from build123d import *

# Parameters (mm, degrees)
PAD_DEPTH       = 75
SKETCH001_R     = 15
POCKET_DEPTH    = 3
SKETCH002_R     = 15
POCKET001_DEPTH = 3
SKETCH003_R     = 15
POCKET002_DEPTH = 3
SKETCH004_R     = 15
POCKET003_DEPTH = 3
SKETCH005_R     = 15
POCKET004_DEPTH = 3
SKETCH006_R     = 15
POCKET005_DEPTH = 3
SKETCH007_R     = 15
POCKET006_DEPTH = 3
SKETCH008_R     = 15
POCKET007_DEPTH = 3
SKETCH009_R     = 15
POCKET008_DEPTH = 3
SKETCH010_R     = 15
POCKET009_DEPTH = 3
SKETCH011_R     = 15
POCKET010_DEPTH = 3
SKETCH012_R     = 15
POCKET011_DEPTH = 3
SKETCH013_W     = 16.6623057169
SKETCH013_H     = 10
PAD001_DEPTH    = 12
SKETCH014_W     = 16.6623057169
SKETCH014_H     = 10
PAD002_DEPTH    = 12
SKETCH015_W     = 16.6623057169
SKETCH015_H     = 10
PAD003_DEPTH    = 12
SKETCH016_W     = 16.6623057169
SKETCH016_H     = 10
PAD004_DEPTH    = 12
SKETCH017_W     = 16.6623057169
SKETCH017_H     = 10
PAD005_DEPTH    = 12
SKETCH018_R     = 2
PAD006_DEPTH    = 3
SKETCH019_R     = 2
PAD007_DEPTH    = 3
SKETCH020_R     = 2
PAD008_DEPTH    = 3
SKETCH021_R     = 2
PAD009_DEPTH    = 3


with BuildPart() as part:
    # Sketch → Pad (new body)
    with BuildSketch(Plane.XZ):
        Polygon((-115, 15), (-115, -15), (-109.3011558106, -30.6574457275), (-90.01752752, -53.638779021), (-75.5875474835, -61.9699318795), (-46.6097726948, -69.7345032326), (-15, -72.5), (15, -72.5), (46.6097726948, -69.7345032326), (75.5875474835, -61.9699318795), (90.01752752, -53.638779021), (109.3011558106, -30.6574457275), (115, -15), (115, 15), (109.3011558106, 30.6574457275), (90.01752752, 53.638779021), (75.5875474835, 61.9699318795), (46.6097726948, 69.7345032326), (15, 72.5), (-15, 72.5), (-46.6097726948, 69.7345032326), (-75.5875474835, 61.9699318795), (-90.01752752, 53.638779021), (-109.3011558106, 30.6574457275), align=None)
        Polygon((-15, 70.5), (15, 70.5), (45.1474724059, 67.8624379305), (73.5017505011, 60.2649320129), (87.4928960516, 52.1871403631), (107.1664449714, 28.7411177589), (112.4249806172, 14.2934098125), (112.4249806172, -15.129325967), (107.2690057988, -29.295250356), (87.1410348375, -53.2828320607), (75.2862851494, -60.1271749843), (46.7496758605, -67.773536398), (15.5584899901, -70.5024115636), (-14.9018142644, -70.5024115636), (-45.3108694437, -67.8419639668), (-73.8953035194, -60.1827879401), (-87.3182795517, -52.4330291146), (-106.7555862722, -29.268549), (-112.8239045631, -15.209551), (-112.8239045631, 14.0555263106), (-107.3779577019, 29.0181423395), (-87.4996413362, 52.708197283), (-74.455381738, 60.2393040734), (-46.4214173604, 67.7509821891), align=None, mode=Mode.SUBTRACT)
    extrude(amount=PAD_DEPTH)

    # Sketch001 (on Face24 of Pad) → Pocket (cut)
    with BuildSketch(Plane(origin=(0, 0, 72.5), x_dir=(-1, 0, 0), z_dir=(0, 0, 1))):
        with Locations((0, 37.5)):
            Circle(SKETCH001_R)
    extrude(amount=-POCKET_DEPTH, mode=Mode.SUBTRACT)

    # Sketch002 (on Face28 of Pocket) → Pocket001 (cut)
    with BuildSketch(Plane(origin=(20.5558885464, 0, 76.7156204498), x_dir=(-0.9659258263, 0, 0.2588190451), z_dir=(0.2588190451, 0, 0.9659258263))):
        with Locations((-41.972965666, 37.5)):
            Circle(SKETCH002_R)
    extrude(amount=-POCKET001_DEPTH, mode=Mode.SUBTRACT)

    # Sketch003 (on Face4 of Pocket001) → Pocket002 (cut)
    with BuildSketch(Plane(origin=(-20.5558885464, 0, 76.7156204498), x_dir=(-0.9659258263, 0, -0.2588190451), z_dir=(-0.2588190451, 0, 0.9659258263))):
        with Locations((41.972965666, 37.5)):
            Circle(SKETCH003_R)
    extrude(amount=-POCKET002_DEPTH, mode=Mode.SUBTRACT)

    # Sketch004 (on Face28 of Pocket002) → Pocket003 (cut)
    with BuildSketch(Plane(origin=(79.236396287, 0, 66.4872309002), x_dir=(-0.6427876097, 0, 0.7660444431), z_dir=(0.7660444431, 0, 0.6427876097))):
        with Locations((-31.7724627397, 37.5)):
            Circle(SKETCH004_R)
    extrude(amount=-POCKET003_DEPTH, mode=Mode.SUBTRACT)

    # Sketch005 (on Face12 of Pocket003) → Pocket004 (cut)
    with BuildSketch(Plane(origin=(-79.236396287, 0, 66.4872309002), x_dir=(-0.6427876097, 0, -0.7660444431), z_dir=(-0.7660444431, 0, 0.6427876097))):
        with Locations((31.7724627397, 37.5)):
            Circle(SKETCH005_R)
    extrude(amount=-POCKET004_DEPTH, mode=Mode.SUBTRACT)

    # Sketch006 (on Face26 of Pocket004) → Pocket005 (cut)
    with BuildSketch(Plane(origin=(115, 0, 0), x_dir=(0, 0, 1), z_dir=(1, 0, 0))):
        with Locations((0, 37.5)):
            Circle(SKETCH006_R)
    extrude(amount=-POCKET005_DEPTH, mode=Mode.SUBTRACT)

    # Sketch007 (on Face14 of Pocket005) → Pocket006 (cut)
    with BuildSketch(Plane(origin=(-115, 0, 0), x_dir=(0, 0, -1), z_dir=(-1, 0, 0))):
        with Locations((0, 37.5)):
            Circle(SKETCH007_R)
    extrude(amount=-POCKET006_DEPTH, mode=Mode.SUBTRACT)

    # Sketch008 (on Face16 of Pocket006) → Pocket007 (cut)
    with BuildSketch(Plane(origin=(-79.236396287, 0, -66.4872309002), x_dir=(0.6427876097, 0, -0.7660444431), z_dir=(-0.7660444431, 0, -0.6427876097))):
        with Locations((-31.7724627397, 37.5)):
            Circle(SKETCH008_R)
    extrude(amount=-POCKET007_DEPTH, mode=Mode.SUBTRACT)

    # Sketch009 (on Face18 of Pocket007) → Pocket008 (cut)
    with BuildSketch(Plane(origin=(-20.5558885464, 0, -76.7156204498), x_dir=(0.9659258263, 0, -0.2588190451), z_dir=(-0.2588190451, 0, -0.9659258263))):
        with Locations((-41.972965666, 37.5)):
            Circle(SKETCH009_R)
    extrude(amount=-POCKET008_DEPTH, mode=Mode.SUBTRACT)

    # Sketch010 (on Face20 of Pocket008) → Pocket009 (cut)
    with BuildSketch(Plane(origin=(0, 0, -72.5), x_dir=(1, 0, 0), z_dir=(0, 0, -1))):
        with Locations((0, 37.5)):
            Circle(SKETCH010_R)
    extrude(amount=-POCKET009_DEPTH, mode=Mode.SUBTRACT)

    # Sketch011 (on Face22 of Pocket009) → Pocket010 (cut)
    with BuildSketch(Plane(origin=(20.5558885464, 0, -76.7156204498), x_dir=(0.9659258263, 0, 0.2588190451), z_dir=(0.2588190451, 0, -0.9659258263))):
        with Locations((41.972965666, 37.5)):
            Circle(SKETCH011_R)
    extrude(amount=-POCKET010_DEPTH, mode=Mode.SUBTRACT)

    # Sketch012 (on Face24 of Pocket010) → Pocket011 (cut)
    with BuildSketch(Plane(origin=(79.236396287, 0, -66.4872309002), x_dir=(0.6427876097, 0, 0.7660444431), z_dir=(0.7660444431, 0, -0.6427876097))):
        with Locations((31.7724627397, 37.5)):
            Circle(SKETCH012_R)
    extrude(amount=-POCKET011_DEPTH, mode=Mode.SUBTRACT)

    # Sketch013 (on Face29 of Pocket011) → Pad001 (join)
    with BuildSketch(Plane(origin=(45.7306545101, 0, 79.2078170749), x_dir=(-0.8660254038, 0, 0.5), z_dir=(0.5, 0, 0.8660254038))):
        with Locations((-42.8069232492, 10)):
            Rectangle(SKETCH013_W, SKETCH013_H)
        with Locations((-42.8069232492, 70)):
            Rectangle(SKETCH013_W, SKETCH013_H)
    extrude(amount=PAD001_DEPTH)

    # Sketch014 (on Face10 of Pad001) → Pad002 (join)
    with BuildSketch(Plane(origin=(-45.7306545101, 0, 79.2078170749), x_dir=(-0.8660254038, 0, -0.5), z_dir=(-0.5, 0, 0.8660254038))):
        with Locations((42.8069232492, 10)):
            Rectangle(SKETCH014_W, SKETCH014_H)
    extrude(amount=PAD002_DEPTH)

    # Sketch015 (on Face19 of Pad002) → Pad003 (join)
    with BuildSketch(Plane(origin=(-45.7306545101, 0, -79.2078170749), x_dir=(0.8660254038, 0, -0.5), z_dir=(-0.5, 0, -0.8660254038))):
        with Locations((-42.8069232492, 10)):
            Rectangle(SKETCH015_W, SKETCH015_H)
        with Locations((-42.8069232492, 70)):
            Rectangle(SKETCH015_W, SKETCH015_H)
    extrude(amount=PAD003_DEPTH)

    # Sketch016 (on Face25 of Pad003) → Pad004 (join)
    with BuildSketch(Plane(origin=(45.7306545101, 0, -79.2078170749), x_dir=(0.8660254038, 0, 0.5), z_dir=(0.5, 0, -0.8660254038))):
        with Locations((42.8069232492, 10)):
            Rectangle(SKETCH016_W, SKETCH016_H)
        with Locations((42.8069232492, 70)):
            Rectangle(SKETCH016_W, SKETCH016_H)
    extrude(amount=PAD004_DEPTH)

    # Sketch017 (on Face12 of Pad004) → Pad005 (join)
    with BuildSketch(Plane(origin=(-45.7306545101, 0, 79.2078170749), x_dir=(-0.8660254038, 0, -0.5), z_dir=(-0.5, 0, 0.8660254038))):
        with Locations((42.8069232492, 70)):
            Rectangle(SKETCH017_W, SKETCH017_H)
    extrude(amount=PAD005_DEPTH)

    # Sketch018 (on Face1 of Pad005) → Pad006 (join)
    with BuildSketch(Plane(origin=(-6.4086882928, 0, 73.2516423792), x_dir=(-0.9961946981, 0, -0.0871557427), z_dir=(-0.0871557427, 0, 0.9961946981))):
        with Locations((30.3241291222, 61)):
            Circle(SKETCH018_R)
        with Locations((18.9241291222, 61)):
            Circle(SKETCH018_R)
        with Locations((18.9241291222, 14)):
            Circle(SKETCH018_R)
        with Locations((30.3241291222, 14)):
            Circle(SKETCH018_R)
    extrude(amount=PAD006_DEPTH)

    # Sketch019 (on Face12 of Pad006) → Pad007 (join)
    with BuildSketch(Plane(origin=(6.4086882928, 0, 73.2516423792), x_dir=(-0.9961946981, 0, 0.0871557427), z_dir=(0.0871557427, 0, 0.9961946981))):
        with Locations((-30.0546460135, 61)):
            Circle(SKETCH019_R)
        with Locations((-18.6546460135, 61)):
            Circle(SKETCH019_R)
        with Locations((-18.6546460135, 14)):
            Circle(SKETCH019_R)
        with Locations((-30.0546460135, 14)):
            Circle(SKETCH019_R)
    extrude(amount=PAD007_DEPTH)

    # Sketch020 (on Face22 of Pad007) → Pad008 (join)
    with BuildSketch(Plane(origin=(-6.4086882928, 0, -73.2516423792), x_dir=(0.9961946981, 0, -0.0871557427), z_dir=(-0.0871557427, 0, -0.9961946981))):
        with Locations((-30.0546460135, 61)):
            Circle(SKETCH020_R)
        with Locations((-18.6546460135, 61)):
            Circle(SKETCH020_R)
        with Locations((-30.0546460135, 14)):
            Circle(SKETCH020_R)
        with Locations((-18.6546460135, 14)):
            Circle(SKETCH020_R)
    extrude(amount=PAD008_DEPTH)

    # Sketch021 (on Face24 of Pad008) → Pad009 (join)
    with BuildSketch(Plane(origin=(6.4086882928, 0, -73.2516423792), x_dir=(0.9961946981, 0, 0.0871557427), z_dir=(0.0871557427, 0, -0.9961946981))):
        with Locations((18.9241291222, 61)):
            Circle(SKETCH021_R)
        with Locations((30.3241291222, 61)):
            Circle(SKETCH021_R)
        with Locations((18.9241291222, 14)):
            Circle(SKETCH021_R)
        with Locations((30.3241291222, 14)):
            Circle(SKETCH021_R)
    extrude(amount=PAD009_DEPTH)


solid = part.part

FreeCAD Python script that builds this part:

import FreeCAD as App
import Part
import Sketcher
Q = App.Units.Quantity

doc = App.newDocument("Part")
body = doc.addObject("PartDesign::Body", "Body")

# Sketch on XZ plane
sketch1 = body.newObject("Sketcher::SketchObject", "Sketch")
sketch1.AttachmentSupport = (doc.getObject("XZ_Plane"), [""])
sketch1.MapMode = "FlatFace"
sketch1.addGeometry([
    Part.LineSegment(App.Vector(-115, 15, 0), App.Vector(-115, -15, 0)),  # 0
    Part.LineSegment(App.Vector(-115, -15, 0), App.Vector(-109, -31, 0)),  # 1
    Part.LineSegment(App.Vector(-109, -31, 0), App.Vector(-90, -54, 0)),  # 2
    Part.LineSegment(App.Vector(-90, -54, 0), App.Vector(-76, -62, 0)),  # 3
    Part.LineSegment(App.Vector(-76, -62, 0), App.Vector(-47, -70, 0)),  # 4
    Part.LineSegment(App.Vector(-47, -70, 0), App.Vector(-15, -72, 0)),  # 5
    Part.LineSegment(App.Vector(-15, -72, 0), App.Vector(15, -72, 0)),  # 6
    Part.LineSegment(App.Vector(15, -72, 0), App.Vector(47, -70, 0)),  # 7
    Part.LineSegment(App.Vector(47, -70, 0), App.Vector(76, -62, 0)),  # 8
    Part.LineSegment(App.Vector(76, -62, 0), App.Vector(90, -54, 0)),  # 9
    Part.LineSegment(App.Vector(90, -54, 0), App.Vector(109, -31, 0)),  # 10
    Part.LineSegment(App.Vector(109, -31, 0), App.Vector(115, -15, 0)),  # 11
    Part.LineSegment(App.Vector(115, -15, 0), App.Vector(115, 15, 0)),  # 12
    Part.LineSegment(App.Vector(115, 15, 0), App.Vector(109, 31, 0)),  # 13
    Part.LineSegment(App.Vector(109, 31, 0), App.Vector(90, 54, 0)),  # 14
    Part.LineSegment(App.Vector(90, 54, 0), App.Vector(76, 62, 0)),  # 15
    Part.LineSegment(App.Vector(76, 62, 0), App.Vector(47, 70, 0)),  # 16
    Part.LineSegment(App.Vector(47, 70, 0), App.Vector(15, 72, 0)),  # 17
    Part.LineSegment(App.Vector(15, 72, 0), App.Vector(-15, 72, 0)),  # 18
    Part.LineSegment(App.Vector(-15, 72, 0), App.Vector(-47, 70, 0)),  # 19
    Part.LineSegment(App.Vector(-47, 70, 0), App.Vector(-76, 62, 0)),  # 20
    Part.LineSegment(App.Vector(-76, 62, 0), App.Vector(-90, 54, 0)),  # 21
    Part.LineSegment(App.Vector(-90, 54, 0), App.Vector(-109, 31, 0)),  # 22
    Part.LineSegment(App.Vector(-109, 31, 0), App.Vector(-115, 15, 0)),  # 23
    Part.LineSegment(App.Vector(-46, 68, 0), App.Vector(-15, 70, 0)),  # 24
    Part.LineSegment(App.Vector(-15, 70, 0), App.Vector(15, 70, 0)),  # 25
    Part.LineSegment(App.Vector(15, 70, 0), App.Vector(45, 68, 0)),  # 26
    Part.LineSegment(App.Vector(45, 68, 0), App.Vector(74, 60, 0)),  # 27
    Part.LineSegment(App.Vector(74, 60, 0), App.Vector(87, 52, 0)),  # 28
    Part.LineSegment(App.Vector(87, 52, 0), App.Vector(107, 29, 0)),  # 29
    Part.LineSegment(App.Vector(107, 29, 0), App.Vector(112, 14, 0)),  # 30
    Part.LineSegment(App.Vector(112, 14, 0), App.Vector(112, -15, 0)),  # 31
    Part.LineSegment(App.Vector(112, -15, 0), App.Vector(107, -29, 0)),  # 32
    Part.LineSegment(App.Vector(107, -29, 0), App.Vector(87, -53, 0)),  # 33
    Part.LineSegment(App.Vector(87, -53, 0), App.Vector(75, -60, 0)),  # 34
    Part.LineSegment(App.Vector(75, -60, 0), App.Vector(47, -68, 0)),  # 35
    Part.LineSegment(App.Vector(47, -68, 0), App.Vector(16, -71, 0)),  # 36
    Part.LineSegment(App.Vector(16, -71, 0), App.Vector(-15, -71, 0)),  # 37
    Part.LineSegment(App.Vector(-15, -71, 0), App.Vector(-45, -68, 0)),  # 38
    Part.LineSegment(App.Vector(-45, -68, 0), App.Vector(-74, -60, 0)),  # 39
    Part.LineSegment(App.Vector(-74, -60, 0), App.Vector(-87, -52, 0)),  # 40
    Part.LineSegment(App.Vector(-87, -52, 0), App.Vector(-107, -29, 0)),  # 41
    Part.LineSegment(App.Vector(-107, -29, 0), App.Vector(-113, -15, 0)),  # 42
    Part.LineSegment(App.Vector(-113, -15, 0), App.Vector(-113, 14, 0)),  # 43
    Part.LineSegment(App.Vector(-113, 14, 0), App.Vector(-107, 29, 0)),  # 44
    Part.LineSegment(App.Vector(-107, 29, 0), App.Vector(-87, 53, 0)),  # 45
    Part.LineSegment(App.Vector(-87, 53, 0), App.Vector(-74, 60, 0)),  # 46
    Part.LineSegment(App.Vector(-74, 60, 0), App.Vector(-46, 68, 0)),  # 47
], False)
sketch1.addConstraint([
    Sketcher.Constraint("Coincident", 0, 2, 1, 1),
    Sketcher.Constraint("Coincident", 1, 2, 2, 1),
    Sketcher.Constraint("Coincident", 2, 2, 3, 1),
    Sketcher.Constraint("Coincident", 3, 2, 4, 1),
    Sketcher.Constraint("Coincident", 4, 2, 5, 1),
    Sketcher.Constraint("Coincident", 5, 2, 6, 1),
    Sketcher.Constraint("Coincident", 6, 2, 7, 1),
    Sketcher.Constraint("Coincident", 7, 2, 8, 1),
    Sketcher.Constraint("Coincident", 8, 2, 9, 1),
    Sketcher.Constraint("Coincident", 9, 2, 10, 1),
    Sketcher.Constraint("Coincident", 10, 2, 11, 1),
    Sketcher.Constraint("Coincident", 11, 2, 12, 1),
    Sketcher.Constraint("Coincident", 12, 2, 13, 1),
    Sketcher.Constraint("Coincident", 13, 2, 14, 1),
    Sketcher.Constraint("Coincident", 14, 2, 15, 1),
    Sketcher.Constraint("Coincident", 15, 2, 16, 1),
    Sketcher.Constraint("Coincident", 16, 2, 17, 1),
    Sketcher.Constraint("Coincident", 17, 2, 18, 1),
    Sketcher.Constraint("Coincident", 18, 2, 19, 1),
    Sketcher.Constraint("Coincident", 19, 2, 20, 1),
    Sketcher.Constraint("Coincident", 20, 2, 21, 1),
    Sketcher.Constraint("Coincident", 21, 2, 22, 1),
    Sketcher.Constraint("Coincident", 22, 2, 23, 1),
    Sketcher.Constraint("Coincident", 23, 2, 0, 1),
    Sketcher.Constraint("Coincident", 24, 2, 25, 1),
    Sketcher.Constraint("Coincident", 25, 2, 26, 1),
    Sketcher.Constraint("Coincident", 26, 2, 27, 1),
    Sketcher.Constraint("Coincident", 27, 2, 28, 1),
    Sketcher.Constraint("Coincident", 28, 2, 29, 1),
    Sketcher.Constraint("Coincident", 29, 2, 30, 1),
    Sketcher.Constraint("Coincident", 30, 2, 31, 1),
    Sketcher.Constraint("Coincident", 31, 2, 32, 1),
    Sketcher.Constraint("Coincident", 32, 2, 33, 1),
    Sketcher.Constraint("Coincident", 33, 2, 34, 1),
    Sketcher.Constraint("Coincident", 34, 2, 35, 1),
    Sketcher.Constraint("Coincident", 35, 2, 36, 1),
    Sketcher.Constraint("Coincident", 36, 2, 37, 1),
    Sketcher.Constraint("Coincident", 37, 2, 38, 1),
    Sketcher.Constraint("Coincident", 38, 2, 39, 1),
    Sketcher.Constraint("Coincident", 39, 2, 40, 1),
    Sketcher.Constraint("Coincident", 40, 2, 41, 1),
    Sketcher.Constraint("Coincident", 41, 2, 42, 1),
    Sketcher.Constraint("Coincident", 42, 2, 43, 1),
    Sketcher.Constraint("Coincident", 43, 2, 44, 1),
    Sketcher.Constraint("Coincident", 44, 2, 45, 1),
    Sketcher.Constraint("Coincident", 45, 2, 46, 1),
    Sketcher.Constraint("Coincident", 46, 2, 47, 1),
    Sketcher.Constraint("Coincident", 47, 2, 24, 1),
    Sketcher.Constraint("Vertical", 0),
    Sketcher.Constraint("Horizontal", 6),
    Sketcher.Constraint("Vertical", 12),
    Sketcher.Constraint("Horizontal", 18),
    Sketcher.Constraint("Horizontal", 25),
    Sketcher.Constraint("Vertical", 31),
    Sketcher.Constraint("Horizontal", 37),
    Sketcher.Constraint("Vertical", 43),
    Sketcher.Constraint("Symmetric", 0, 2, 12, 2, -1, 1),
    Sketcher.Constraint("Symmetric", 1, 2, 13, 2, -1, 1),
    Sketcher.Constraint("Symmetric", 2, 2, 14, 2, -1, 1),
    Sketcher.Constraint("Symmetric", 3, 2, 15, 2, -1, 1),
    Sketcher.Constraint("Symmetric", 4, 2, 16, 2, -1, 1),
    Sketcher.Constraint("Symmetric", 5, 2, 17, 2, -1, 1),
    Sketcher.Constraint("Symmetric", 7, 2, 19, 2, -1, 1),
    Sketcher.Constraint("Symmetric", 8, 2, 20, 2, -1, 1),
    Sketcher.Constraint("Symmetric", 9, 2, 21, 2, -1, 1),
    Sketcher.Constraint("Symmetric", 10, 2, 22, 2, -1, 1),
    Sketcher.Constraint("Symmetric", 4, 2, 7, 2, -2),
    Sketcher.Constraint("Symmetric", 3, 2, 8, 2, -2),
    Sketcher.Constraint("Symmetric", 2, 2, 9, 2, -2),
    Sketcher.Constraint("Symmetric", 1, 2, 10, 2, -2),
    Sketcher.Constraint("Parallel", 7, 19),
    Sketcher.Constraint("Parallel", 11, 23),
    Sketcher.Constraint("Parallel", 19, 24),
    Sketcher.Constraint("Parallel", 17, 26),
    Sketcher.Constraint("Parallel", 16, 27),
    Sketcher.Constraint("Parallel", 15, 28),
    Sketcher.Constraint("Parallel", 14, 29),
    Sketcher.Constraint("Parallel", 13, 30),
    Sketcher.Constraint("Parallel", 23, 32),
    Sketcher.Constraint("Parallel", 22, 33),
    Sketcher.Constraint("Parallel", 21, 34),
    Sketcher.Constraint("Parallel", 20, 35),
    Sketcher.Constraint("Parallel", 24, 36),
    Sketcher.Constraint("Parallel", 26, 38),
    Sketcher.Constraint("Parallel", 27, 39),
    Sketcher.Constraint("Parallel", 28, 40),
    Sketcher.Constraint("Parallel", 29, 41),
    Sketcher.Constraint("Parallel", 32, 44),
    Sketcher.Constraint("Parallel", 33, 45),
    Sketcher.Constraint("Parallel", 34, 46),
    Sketcher.Constraint("Parallel", 35, 47),
    Sketcher.Constraint("Horizontal", 0, 2, 11, 2),
    Sketcher.Constraint("Vertical", 6, 2, 17, 2),
    Sketcher.Constraint("Vertical", 18, 2, 24, 2),
    Sketcher.Constraint("Vertical", 17, 2, 25, 2),
    Sketcher.Constraint("Equal", 25, 0),
    Sketcher.Constraint("Equal", 1, 3),
    Sketcher.Constraint("Equal", 2, 4),
    Sketcher.Constraint("DistanceX", 6, 1, 6, 2, Q("30 mm")),
    Sketcher.Constraint("Angle", 1, Q("-70 deg")),
    Sketcher.Constraint("Angle", 2, Q("-50 deg")),
    Sketcher.Constraint("Angle", 3, Q("-30 deg")),
    Sketcher.Constraint("Angle", 4, Q("-15 deg")),
    Sketcher.Constraint("Angle", 5, Q("-5 deg")),
    Sketcher.Constraint("Distance", 2, Q("30 mm")),
    Sketcher.Constraint("DistanceX", 0, 2, -1, 1, Q("115 mm")),
    Sketcher.Constraint("DistanceY", 24, 2, 18, 2, Q("2 mm")),
    Sketcher.Constraint("DistanceY", 5, 2, -1, 1, Q("72.5 mm")),
    Sketcher.Constraint("DistanceY", 27, 2, 15, 2, Q("1.705 mm")),
    Sketcher.Constraint("DistanceY", 41, 2, 42, 2, Q("14.058998 mm")),
    Sketcher.Constraint("DistanceX", 26, 2, 16, 2, Q("1.4623 mm")),
    Sketcher.Constraint("DistanceY", 8, 2, 33, 2, Q("8.6871 mm")),
    Sketcher.Constraint("DistanceX", 22, 2, 44, 2, Q("1.923198 mm")),
    Sketcher.Constraint("DistanceY", 46, 2, 19, 2, Q("9.495199 mm")),
    Sketcher.Constraint("Distance", 29, Q("30.606609 mm")),
    Sketcher.Constraint("Distance", 30, Q("15.37493 mm")),
    Sketcher.Constraint("Distance", 32, Q("15.075062 mm")),
    Sketcher.Constraint("Distance", 35, Q("29.543272 mm")),
    Sketcher.Constraint("Distance", 36, Q("31.310331 mm")),
    Sketcher.Constraint("Distance", 41, Q("30.239081 mm")),
    Sketcher.Constraint("Distance", 45, Q("30.92517 mm")),
    Sketcher.Constraint("DistanceX", 37, 2, 37, 1, Q("30.460304 mm")),
    Sketcher.Constraint("DistanceY", 31, 2, 31, 1, Q("29.422736 mm")),
    Sketcher.Constraint("DistanceY", 43, 1, 43, 2, Q("29.265077 mm")),
    Sketcher.Constraint("DistanceY", -1, 1, 28, 2, Q("52.18714 mm")),
    Sketcher.Constraint("DistanceX", -1, 1, 36, 2, Q("15.55849 mm")),
    Sketcher.Constraint("DistanceX", 38, 2, -1, 1, Q("45.310869 mm")),
    Sketcher.Constraint("DistanceX", 40, 2, -1, 1, Q("87.31828 mm")),
    Sketcher.Constraint("DistanceY", 40, 2, -1, 1, Q("52.433029 mm")),
    Sketcher.Constraint("DistanceX", 46, 2, -1, 1, Q("74.455382 mm")),
])
pad1 = body.newObject("PartDesign::Pad", "Pad")
pad1.Profile = sketch1
pad1.Length = 75

# Sketch on XY plane
sketch2 = body.newObject("Sketcher::SketchObject", "Sketch001")
sketch2.AttachmentSupport = (doc.getObject("XY_Plane"), [""])
sketch2.MapMode = "FlatFace"
sketch2.AttachmentOffset = App.Placement(App.Vector(0, 0, 72.5), App.Rotation())
sketch2.addGeometry(Part.Circle(App.Vector(0, -38, 0), App.Vector(0, 0, 1), 15), False)
sketch2.addConstraint([
    Sketcher.Constraint("PointOnObject", 0, 3, -2),
    Sketcher.Constraint("Diameter", 0, Q("30 mm")),
    Sketcher.Constraint("DistanceY", 0, 3, -1, 1, Q("37.5 mm")),
])
pocket1 = body.newObject("PartDesign::Pocket", "Pocket")
pocket1.Profile = sketch2
pocket1.Length = 3

# Sketch on an angled plane
sketch3 = body.newObject("Sketcher::SketchObject", "Sketch002")
sketch3.Placement = App.Placement(App.Vector(20.555889, 0, 76.71562), App.Rotation(App.Vector(-0.965925826, 0, 0.258819045), App.Vector(0, -0.999999999, 0), App.Vector(0.258819045, 0, 0.965925826), "ZXY"))
sketch3.addGeometry(Part.Circle(App.Vector(-42, 37, 0), App.Vector(0, 0, 1), 15), False)
sketch3.addConstraint([
    Sketcher.Constraint("Diameter", 0, Q("30 mm")),
    Sketcher.Constraint("DistanceY", -1, 1, 0, 3, Q("37.5 mm")),
    Sketcher.Constraint("DistanceX", 0, 3, -1, 1, Q("41.972966 mm")),
])
pocket2 = body.newObject("PartDesign::Pocket", "Pocket001")
pocket2.Profile = sketch3
pocket2.Length = 3

# Sketch on an angled plane
sketch4 = body.newObject("Sketcher::SketchObject", "Sketch003")
sketch4.Placement = App.Placement(App.Vector(-20.555889, 0, 76.71562), App.Rotation(App.Vector(-0.965925826, 0, -0.258819045), App.Vector(0, -0.999999999, 0), App.Vector(-0.258819045, 0, 0.965925826), "ZXY"))
sketch4.addGeometry(Part.Circle(App.Vector(42, 37, 0), App.Vector(0, 0, 1), 15), False)
sketch4.addConstraint([
    Sketcher.Constraint("Diameter", 0, Q("30 mm")),
    Sketcher.Constraint("DistanceY", -1, 1, 0, 3, Q("37.5 mm")),
    Sketcher.Constraint("DistanceX", -1, 1, 0, 3, Q("41.972966 mm")),
])
pocket3 = body.newObject("PartDesign::Pocket", "Pocket002")
pocket3.Profile = sketch4
pocket3.Length = 3

# Sketch on an angled plane
sketch5 = body.newObject("Sketcher::SketchObject", "Sketch004")
sketch5.Placement = App.Placement(App.Vector(79.236396, 0, 66.487231), App.Rotation(App.Vector(-0.64278761, 0, 0.766044443), App.Vector(0, -1, 0), App.Vector(0.766044443, 0, 0.64278761), "ZXY"))
sketch5.addGeometry(Part.Circle(App.Vector(-32, 38, 0), App.Vector(0, 0, 1), 15), False)
sketch5.addConstraint([
    Sketcher.Constraint("Diameter", 0, Q("30 mm")),
    Sketcher.Constraint("DistanceY", -1, 1, 0, 3, Q("37.5 mm")),
    Sketcher.Constraint("DistanceX", 0, 3, -1, 1, Q("31.772463 mm")),
])
pocket4 = body.newObject("PartDesign::Pocket", "Pocket003")
pocket4.Profile = sketch5
pocket4.Length = 3

# Sketch on an angled plane
sketch6 = body.newObject("Sketcher::SketchObject", "Sketch005")
sketch6.Placement = App.Placement(App.Vector(-79.236396, 0, 66.487231), App.Rotation(App.Vector(-0.64278761, 0, -0.766044443), App.Vector(0, -1, 0), App.Vector(-0.766044443, 0, 0.64278761), "ZXY"))
sketch6.addGeometry(Part.Circle(App.Vector(32, 38, 0), App.Vector(0, 0, 1), 15), False)
sketch6.addConstraint([
    Sketcher.Constraint("Diameter", 0, Q("30 mm")),
    Sketcher.Constraint("DistanceY", -1, 1, 0, 3, Q("37.5 mm")),
    Sketcher.Constraint("DistanceX", -1, 1, 0, 3, Q("31.772463 mm")),
])
pocket5 = body.newObject("PartDesign::Pocket", "Pocket004")
pocket5.Profile = sketch6
pocket5.Length = 3

# Sketch on YZ plane
sketch7 = body.newObject("Sketcher::SketchObject", "Sketch006")
sketch7.AttachmentSupport = (doc.getObject("YZ_Plane"), [""])
sketch7.MapMode = "FlatFace"
sketch7.AttachmentOffset = App.Placement(App.Vector(0, 0, 115), App.Rotation())
sketch7.addGeometry(Part.Circle(App.Vector(-38, 0, 0), App.Vector(0, 0, 1), 15), False)
sketch7.addConstraint([
    Sketcher.Constraint("PointOnObject", 0, 3, -1),
    Sketcher.Constraint("Diameter", 0, Q("30 mm")),
    Sketcher.Constraint("DistanceX", 0, 3, -1, 1, Q("37.5 mm")),
])
pocket6 = body.newObject("PartDesign::Pocket", "Pocket005")
pocket6.Profile = sketch7
pocket6.Length = 3

# Sketch on YZ plane
sketch8 = body.newObject("Sketcher::SketchObject", "Sketch007")
sketch8.AttachmentSupport = (doc.getObject("YZ_Plane"), [""])
sketch8.MapMode = "FlatFace"
sketch8.AttachmentOffset = App.Placement(App.Vector(0, 0, -115), App.Rotation())
sketch8.addGeometry(Part.Circle(App.Vector(-38, 0, 0), App.Vector(0, 0, 1), 15), False)
sketch8.addConstraint([
    Sketcher.Constraint("PointOnObject", 0, 3, -1),
    Sketcher.Constraint("Diameter", 0, Q("30 mm")),
    Sketcher.Constraint("DistanceX", 0, 3, -1, 1, Q("37.5 mm")),
])
pocket7 = body.newObject("PartDesign::Pocket", "Pocket006")
pocket7.Profile = sketch8
pocket7.Length = 3
pocket7.Reversed = True

# Sketch on an angled plane
sketch9 = body.newObject("Sketcher::SketchObject", "Sketch008")
sketch9.Placement = App.Placement(App.Vector(-79.236396, 0, -66.487231), App.Rotation(App.Vector(0.64278761, 0, -0.766044443), App.Vector(0, -1, 0), App.Vector(-0.766044443, 0, -0.64278761), "ZXY"))
sketch9.addGeometry(Part.Circle(App.Vector(-32, 38, 0), App.Vector(0, 0, 1), 15), False)
sketch9.addConstraint([
    Sketcher.Constraint("Diameter", 0, Q("30 mm")),
    Sketcher.Constraint("DistanceY", -1, 1, 0, 3, Q("37.5 mm")),
    Sketcher.Constraint("DistanceX", 0, 3, -1, 1, Q("31.772463 mm")),
])
pocket8 = body.newObject("PartDesign::Pocket", "Pocket007")
pocket8.Profile = sketch9
pocket8.Length = 3

# Sketch on an angled plane
sketch10 = body.newObject("Sketcher::SketchObject", "Sketch009")
sketch10.Placement = App.Placement(App.Vector(-20.555889, 0, -76.71562), App.Rotation(App.Vector(0.965925826, 0, -0.258819045), App.Vector(0, -0.999999999, 0), App.Vector(-0.258819045, 0, -0.965925826), "ZXY"))
sketch10.addGeometry(Part.Circle(App.Vector(-42, 37, 0), App.Vector(0, 0, 1), 15), False)
sketch10.addConstraint([
    Sketcher.Constraint("Diameter", 0, Q("30 mm")),
    Sketcher.Constraint("DistanceY", -1, 1, 0, 3, Q("37.5 mm")),
    Sketcher.Constraint("DistanceX", 0, 3, -1, 1, Q("41.972966 mm")),
])
pocket9 = body.newObject("PartDesign::Pocket", "Pocket008")
pocket9.Profile = sketch10
pocket9.Length = 3

# Sketch on XY plane
sketch11 = body.newObject("Sketcher::SketchObject", "Sketch010")
sketch11.AttachmentSupport = (doc.getObject("XY_Plane"), [""])
sketch11.MapMode = "FlatFace"
sketch11.AttachmentOffset = App.Placement(App.Vector(0, 0, -72.5), App.Rotation())
sketch11.addGeometry(Part.Circle(App.Vector(0, -38, 0), App.Vector(0, 0, 1), 15), False)
sketch11.addConstraint([
    Sketcher.Constraint("PointOnObject", 0, 3, -2),
    Sketcher.Constraint("Diameter", 0, Q("30 mm")),
    Sketcher.Constraint("DistanceY", 0, 3, -1, 1, Q("37.5 mm")),
])
pocket10 = body.newObject("PartDesign::Pocket", "Pocket009")
pocket10.Profile = sketch11
pocket10.Length = 3
pocket10.Reversed = True

# Sketch on an angled plane
sketch12 = body.newObject("Sketcher::SketchObject", "Sketch011")
sketch12.Placement = App.Placement(App.Vector(20.555889, 0, -76.71562), App.Rotation(App.Vector(0.965925826, 0, 0.258819045), App.Vector(0, -0.999999999, 0), App.Vector(0.258819045, 0, -0.965925826), "ZXY"))
sketch12.addGeometry(Part.Circle(App.Vector(42, 37, 0), App.Vector(0, 0, 1), 15), False)
sketch12.addConstraint([
    Sketcher.Constraint("Diameter", 0, Q("30 mm")),
    Sketcher.Constraint("DistanceY", -1, 1, 0, 3, Q("37.5 mm")),
    Sketcher.Constraint("DistanceX", -1, 1, 0, 3, Q("41.972966 mm")),
])
pocket11 = body.newObject("PartDesign::Pocket", "Pocket010")
pocket11.Profile = sketch12
pocket11.Length = 3

# Sketch on an angled plane
sketch13 = body.newObject("Sketcher::SketchObject", "Sketch012")
sketch13.Placement = App.Placement(App.Vector(79.236396, 0, -66.487231), App.Rotation(App.Vector(0.64278761, 0, 0.766044443), App.Vector(0, -1, 0), App.Vector(0.766044443, 0, -0.64278761), "ZXY"))
sketch13.addGeometry(Part.Circle(App.Vector(32, 38, 0), App.Vector(0, 0, 1), 15), False)
sketch13.addConstraint([
    Sketcher.Constraint("Diameter", 0, Q("30 mm")),
    Sketcher.Constraint("DistanceY", -1, 1, 0, 3, Q("37.5 mm")),
    Sketcher.Constraint("DistanceX", -1, 1, 0, 3, Q("31.772463 mm")),
])
pocket12 = body.newObject("PartDesign::Pocket", "Pocket011")
pocket12.Profile = sketch13
pocket12.Length = 3

# Sketch on an angled plane
sketch14 = body.newObject("Sketcher::SketchObject", "Sketch013")
sketch14.Placement = App.Placement(App.Vector(45.730655, 0, 79.207817), App.Rotation(App.Vector(-0.866025404, 0, 0.5), App.Vector(0, -1, 0), App.Vector(0.5, 0, 0.866025404), "ZXY"))
sketch14.addGeometry([
    Part.LineSegment(App.Vector(-51, 15, 0), App.Vector(-51, 5, 0)),  # 0
    Part.LineSegment(App.Vector(-51, 5, 0), App.Vector(-34, 5, 0)),  # 1
    Part.LineSegment(App.Vector(-34, 5, 0), App.Vector(-34, 15, 0)),  # 2
    Part.LineSegment(App.Vector(-34, 15, 0), App.Vector(-51, 15, 0)),  # 3
    Part.LineSegment(App.Vector(-51, 75, 0), App.Vector(-51, 65, 0)),  # 4
    Part.LineSegment(App.Vector(-51, 65, 0), App.Vector(-34, 65, 0)),  # 5
    Part.LineSegment(App.Vector(-34, 65, 0), App.Vector(-34, 75, 0)),  # 6
    Part.LineSegment(App.Vector(-34, 75, 0), App.Vector(-51, 75, 0)),  # 7
], False)
sketch14.addConstraint([
    Sketcher.Constraint("Coincident", 0, 2, 1, 1),
    Sketcher.Constraint("Coincident", 1, 2, 2, 1),
    Sketcher.Constraint("Coincident", 2, 2, 3, 1),
    Sketcher.Constraint("Coincident", 3, 2, 0, 1),
    Sketcher.Constraint("Coincident", 4, 2, 5, 1),
    Sketcher.Constraint("Coincident", 5, 2, 6, 1),
    Sketcher.Constraint("Coincident", 6, 2, 7, 1),
    Sketcher.Constraint("Coincident", 7, 2, 4, 1),
    Sketcher.Constraint("Vertical", 0),
    Sketcher.Constraint("Horizontal", 1),
    Sketcher.Constraint("Vertical", 2),
    Sketcher.Constraint("Horizontal", 3),
    Sketcher.Constraint("Vertical", 4),
    Sketcher.Constraint("Horizontal", 5),
    Sketcher.Constraint("Vertical", 6),
    Sketcher.Constraint("Horizontal", 7),
    Sketcher.Constraint("Vertical", 3, 2, 4, 2),
    Sketcher.Constraint("Vertical", 2, 2, 5, 2),
    Sketcher.Constraint("Equal", 2, 4),
    Sketcher.Constraint("DistanceY", 0, 2, 0, 1, Q("10 mm")),
    Sketcher.Constraint("DistanceY", -1, 1, 0, 2, Q("5 mm")),
    Sketcher.Constraint("DistanceY", -1, 1, 4, 2, Q("65 mm")),
    Sketcher.Constraint("DistanceX", 1, 1, 1, 2, Q("16.662306 mm")),
    Sketcher.Constraint("DistanceX", 1, 2, -1, 1, Q("34.47577 mm")),
])
pad2 = body.newObject("PartDesign::Pad", "Pad001")
pad2.Profile = sketch14
pad2.Length = 12

# Sketch on an angled plane
sketch15 = body.newObject("Sketcher::SketchObject", "Sketch014")
sketch15.Placement = App.Placement(App.Vector(-45.730655, 0, 79.207817), App.Rotation(App.Vector(-0.866025404, 0, -0.5), App.Vector(0, -1, 0), App.Vector(-0.5, 0, 0.866025404), "ZXY"))
sketch15.addGeometry([
    Part.LineSegment(App.Vector(34, 15, 0), App.Vector(34, 5, 0)),
    Part.LineSegment(App.Vector(34, 5, 0), App.Vector(51, 5, 0)),
    Part.LineSegment(App.Vector(51, 5, 0), App.Vector(51, 15, 0)),
    Part.LineSegment(App.Vector(51, 15, 0), App.Vector(34, 15, 0)),
], False)
sketch15.addConstraint([
    Sketcher.Constraint("Coincident", 0, 2, 1, 1),
    Sketcher.Constraint("Coincident", 1, 2, 2, 1),
    Sketcher.Constraint("Coincident", 2, 2, 3, 1),
    Sketcher.Constraint("Coincident", 3, 2, 0, 1),
    Sketcher.Constraint("Vertical", 0),
    Sketcher.Constraint("Horizontal", 1),
    Sketcher.Constraint("Vertical", 2),
    Sketcher.Constraint("Horizontal", 3),
    Sketcher.Constraint("DistanceY", 0, 2, 0, 1, Q("10 mm")),
    Sketcher.Constraint("DistanceY", -1, 1, 0, 2, Q("5 mm")),
    Sketcher.Constraint("DistanceX", 1, 1, 1, 2, Q("16.662306 mm")),
    Sketcher.Constraint("DistanceX", -1, 1, 0, 2, Q("34.47577 mm")),
])
pad3 = body.newObject("PartDesign::Pad", "Pad002")
pad3.Profile = sketch15
pad3.Length = 12

# Sketch on an angled plane
sketch16 = body.newObject("Sketcher::SketchObject", "Sketch015")
sketch16.Placement = App.Placement(App.Vector(-45.730655, 0, -79.207817), App.Rotation(App.Vector(0.866025404, 0, -0.5), App.Vector(0, -1, 0), App.Vector(-0.5, 0, -0.866025404), "ZXY"))
sketch16.addGeometry([
    Part.LineSegment(App.Vector(-51, 15, 0), App.Vector(-51, 5, 0)),  # 0
    Part.LineSegment(App.Vector(-51, 5, 0), App.Vector(-34, 5, 0)),  # 1
    Part.LineSegment(App.Vector(-34, 5, 0), App.Vector(-34, 15, 0)),  # 2
    Part.LineSegment(App.Vector(-34, 15, 0), App.Vector(-51, 15, 0)),  # 3
    Part.LineSegment(App.Vector(-51, 75, 0), App.Vector(-51, 65, 0)),  # 4
    Part.LineSegment(App.Vector(-51, 65, 0), App.Vector(-34, 65, 0)),  # 5
    Part.LineSegment(App.Vector(-34, 65, 0), App.Vector(-34, 75, 0)),  # 6
    Part.LineSegment(App.Vector(-34, 75, 0), App.Vector(-51, 75, 0)),  # 7
], False)
sketch16.addConstraint([
    Sketcher.Constraint("Coincident", 0, 2, 1, 1),
    Sketcher.Constraint("Coincident", 1, 2, 2, 1),
    Sketcher.Constraint("Coincident", 2, 2, 3, 1),
    Sketcher.Constraint("Coincident", 3, 2, 0, 1),
    Sketcher.Constraint("Coincident", 4, 2, 5, 1),
    Sketcher.Constraint("Coincident", 5, 2, 6, 1),
    Sketcher.Constraint("Coincident", 6, 2, 7, 1),
    Sketcher.Constraint("Coincident", 7, 2, 4, 1),
    Sketcher.Constraint("Vertical", 0),
    Sketcher.Constraint("Horizontal", 1),
    Sketcher.Constraint("Vertical", 2),
    Sketcher.Constraint("Horizontal", 3),
    Sketcher.Constraint("Vertical", 4),
    Sketcher.Constraint("Horizontal", 5),
    Sketcher.Constraint("Vertical", 6),
    Sketcher.Constraint("Horizontal", 7),
    Sketcher.Constraint("Vertical", 3, 2, 4, 2),
    Sketcher.Constraint("Vertical", 2, 2, 5, 2),
    Sketcher.Constraint("Equal", 2, 4),
    Sketcher.Constraint("DistanceY", 0, 2, 0, 1, Q("10 mm")),
    Sketcher.Constraint("DistanceY", -1, 1, 0, 2, Q("5 mm")),
    Sketcher.Constraint("DistanceY", -1, 1, 4, 2, Q("65 mm")),
    Sketcher.Constraint("DistanceX", 1, 1, 1, 2, Q("16.662306 mm")),
    Sketcher.Constraint("DistanceX", 1, 2, -1, 1, Q("34.47577 mm")),
])
pad4 = body.newObject("PartDesign::Pad", "Pad003")
pad4.Profile = sketch16
pad4.Length = 12

# Sketch on an angled plane
sketch17 = body.newObject("Sketcher::SketchObject", "Sketch016")
sketch17.Placement = App.Placement(App.Vector(45.730655, 0, -79.207817), App.Rotation(App.Vector(0.866025404, 0, 0.5), App.Vector(0, -1, 0), App.Vector(0.5, 0, -0.866025404), "ZXY"))
sketch17.addGeometry([
    Part.LineSegment(App.Vector(34, 15, 0), App.Vector(34, 5, 0)),  # 0
    Part.LineSegment(App.Vector(34, 5, 0), App.Vector(51, 5, 0)),  # 1
    Part.LineSegment(App.Vector(51, 5, 0), App.Vector(51, 15, 0)),  # 2
    Part.LineSegment(App.Vector(51, 15, 0), App.Vector(34, 15, 0)),  # 3
    Part.LineSegment(App.Vector(34, 75, 0), App.Vector(34, 65, 0)),  # 4
    Part.LineSegment(App.Vector(34, 65, 0), App.Vector(51, 65, 0)),  # 5
    Part.LineSegment(App.Vector(51, 65, 0), App.Vector(51, 75, 0)),  # 6
    Part.LineSegment(App.Vector(51, 75, 0), App.Vector(34, 75, 0)),  # 7
], False)
sketch17.addConstraint([
    Sketcher.Constraint("Coincident", 0, 2, 1, 1),
    Sketcher.Constraint("Coincident", 1, 2, 2, 1),
    Sketcher.Constraint("Coincident", 2, 2, 3, 1),
    Sketcher.Constraint("Coincident", 3, 2, 0, 1),
    Sketcher.Constraint("Coincident", 4, 2, 5, 1),
    Sketcher.Constraint("Coincident", 5, 2, 6, 1),
    Sketcher.Constraint("Coincident", 6, 2, 7, 1),
    Sketcher.Constraint("Coincident", 7, 2, 4, 1),
    Sketcher.Constraint("Vertical", 0),
    Sketcher.Constraint("Horizontal", 1),
    Sketcher.Constraint("Vertical", 2),
    Sketcher.Constraint("Horizontal", 3),
    Sketcher.Constraint("Vertical", 4),
    Sketcher.Constraint("Horizontal", 5),
    Sketcher.Constraint("Vertical", 6),
    Sketcher.Constraint("Horizontal", 7),
    Sketcher.Constraint("Vertical", 3, 2, 4, 2),
    Sketcher.Constraint("Vertical", 2, 2, 5, 2),
    Sketcher.Constraint("Equal", 2, 4),
    Sketcher.Constraint("DistanceY", 0, 2, 0, 1, Q("10 mm")),
    Sketcher.Constraint("DistanceY", -1, 1, 0, 2, Q("5 mm")),
    Sketcher.Constraint("DistanceY", -1, 1, 4, 2, Q("65 mm")),
    Sketcher.Constraint("DistanceX", 1, 1, 1, 2, Q("16.662306 mm")),
    Sketcher.Constraint("DistanceX", -1, 1, 0, 2, Q("34.47577 mm")),
])
pad5 = body.newObject("PartDesign::Pad", "Pad004")
pad5.Profile = sketch17
pad5.Length = 12

# Sketch on an angled plane
sketch18 = body.newObject("Sketcher::SketchObject", "Sketch017")
sketch18.Placement = App.Placement(App.Vector(-45.730655, 0, 79.207817), App.Rotation(App.Vector(-0.866025404, 0, -0.5), App.Vector(0, -1, 0), App.Vector(-0.5, 0, 0.866025404), "ZXY"))
sketch18.addGeometry([
    Part.LineSegment(App.Vector(34, 75, 0), App.Vector(34, 65, 0)),
    Part.LineSegment(App.Vector(34, 65, 0), App.Vector(51, 65, 0)),
    Part.LineSegment(App.Vector(51, 65, 0), App.Vector(51, 75, 0)),
    Part.LineSegment(App.Vector(51, 75, 0), App.Vector(34, 75, 0)),
], False)
sketch18.addConstraint([
    Sketcher.Constraint("Coincident", 0, 2, 1, 1),
    Sketcher.Constraint("Coincident", 1, 2, 2, 1),
    Sketcher.Constraint("Coincident", 2, 2, 3, 1),
    Sketcher.Constraint("Coincident", 3, 2, 0, 1),
    Sketcher.Constraint("Vertical", 0),
    Sketcher.Constraint("Horizontal", 1),
    Sketcher.Constraint("Vertical", 2),
    Sketcher.Constraint("Horizontal", 3),
    Sketcher.Constraint("DistanceY", 0, 2, 0, 1, Q("10 mm")),
    Sketcher.Constraint("DistanceY", -1, 1, 0, 2, Q("65 mm")),
    Sketcher.Constraint("DistanceX", 1, 1, 1, 2, Q("16.662306 mm")),
    Sketcher.Constraint("DistanceX", -1, 1, 0, 2, Q("34.47577 mm")),
])
pad6 = body.newObject("PartDesign::Pad", "Pad005")
pad6.Profile = sketch18
pad6.Length = 12

# Sketch on an angled plane
sketch19 = body.newObject("Sketcher::SketchObject", "Sketch018")
sketch19.Placement = App.Placement(App.Vector(-6.408688, 0, 73.251642), App.Rotation(App.Vector(-0.996194698, 0, -0.087155743), App.Vector(0, -1, 0), App.Vector(-0.087155743, 0, 0.996194698), "ZXY"))
sketch19.addGeometry([
    Part.Circle(App.Vector(30.3, 61, 0), App.Vector(0, 0, 1), 2),
    Part.Circle(App.Vector(18.9, 61, 0), App.Vector(0, 0, 1), 2),
    Part.Circle(App.Vector(18.9, 14, 0), App.Vector(0, 0, 1), 2),
    Part.Circle(App.Vector(30.3, 14, 0), App.Vector(0, 0, 1), 2),
], False)
sketch19.addConstraint([
    Sketcher.Constraint("Equal", 0, 1),
    Sketcher.Constraint("Equal", 1, 2),
    Sketcher.Constraint("Equal", 2, 3),
    Sketcher.Constraint("Horizontal", 0, 3, 1, 3),
    Sketcher.Constraint("Horizontal", 2, 3, 3, 3),
    Sketcher.Constraint("Vertical", 1, 3, 2, 3),
    Sketcher.Constraint("Vertical", 0, 3, 3, 3),
    Sketcher.Constraint("Diameter", 0, Q("4 mm")),
    Sketcher.Constraint("DistanceY", -1, 1, 0, 3, Q("61 mm")),
    Sketcher.Constraint("DistanceY", -1, 1, 2, 3, Q("14 mm")),
    Sketcher.Constraint("DistanceX", 1, 3, 0, 3, Q("11.4 mm")),
    Sketcher.Constraint("DistanceX", -1, 1, 0, 3, Q("30.324129 mm")),
])
pad7 = body.newObject("PartDesign::Pad", "Pad006")
pad7.Profile = sketch19
pad7.Length = 3

# Sketch on an angled plane
sketch20 = body.newObject("Sketcher::SketchObject", "Sketch019")
sketch20.Placement = App.Placement(App.Vector(6.408688, 0, 73.251642), App.Rotation(App.Vector(-0.996194698, 0, 0.087155743), App.Vector(0, -1, 0), App.Vector(0.087155743, 0, 0.996194698), "ZXY"))
sketch20.addGeometry([
    Part.Circle(App.Vector(-30.1, 61, 0), App.Vector(0, 0, 1), 2),
    Part.Circle(App.Vector(-18.7, 61, 0), App.Vector(0, 0, 1), 2),
    Part.Circle(App.Vector(-18.7, 14, 0), App.Vector(0, 0, 1), 2),
    Part.Circle(App.Vector(-30.1, 14, 0), App.Vector(0, 0, 1), 2),
], False)
sketch20.addConstraint([
    Sketcher.Constraint("Equal", 0, 1),
    Sketcher.Constraint("Equal", 1, 2),
    Sketcher.Constraint("Equal", 2, 3),
    Sketcher.Constraint("Horizontal", 0, 3, 1, 3),
    Sketcher.Constraint("Horizontal", 2, 3, 3, 3),
    Sketcher.Constraint("Vertical", 1, 3, 2, 3),
    Sketcher.Constraint("Vertical", 0, 3, 3, 3),
    Sketcher.Constraint("Diameter", 0, Q("4 mm")),
    Sketcher.Constraint("DistanceY", -1, 1, 0, 3, Q("61 mm")),
    Sketcher.Constraint("DistanceY", -1, 1, 2, 3, Q("14 mm")),
    Sketcher.Constraint("DistanceX", 0, 3, 1, 3, Q("11.4 mm")),
    Sketcher.Constraint("DistanceX", 0, 3, -1, 1, Q("30.054646 mm")),
])
pad8 = body.newObject("PartDesign::Pad", "Pad007")
pad8.Profile = sketch20
pad8.Length = 3

# Sketch on an angled plane
sketch21 = body.newObject("Sketcher::SketchObject", "Sketch020")
sketch21.Placement = App.Placement(App.Vector(-6.408688, 0, -73.251642), App.Rotation(App.Vector(0.996194698, 0, -0.087155743), App.Vector(0, -1, 0), App.Vector(-0.087155743, 0, -0.996194698), "ZXY"))
sketch21.addGeometry([
    Part.Circle(App.Vector(-30.1, 61, 0), App.Vector(0, 0, 1), 2),
    Part.Circle(App.Vector(-18.7, 61, 0), App.Vector(0, 0, 1), 2),
    Part.Circle(App.Vector(-30.1, 14, 0), App.Vector(0, 0, 1), 2),
    Part.Circle(App.Vector(-18.7, 14, 0), App.Vector(0, 0, 1), 2),
], False)
sketch21.addConstraint([
    Sketcher.Constraint("Equal", 0, 1),
    Sketcher.Constraint("Equal", 1, 2),
    Sketcher.Constraint("Equal", 2, 3),
    Sketcher.Constraint("Horizontal", 0, 3, 1, 3),
    Sketcher.Constraint("Horizontal", 2, 3, 3, 3),
    Sketcher.Constraint("Vertical", 0, 3, 2, 3),
    Sketcher.Constraint("Vertical", 1, 3, 3, 3),
    Sketcher.Constraint("Diameter", 0, Q("4 mm")),
    Sketcher.Constraint("DistanceY", -1, 1, 0, 3, Q("61 mm")),
    Sketcher.Constraint("DistanceY", -1, 1, 2, 3, Q("14 mm")),
    Sketcher.Constraint("DistanceX", 0, 3, 1, 3, Q("11.4 mm")),
    Sketcher.Constraint("DistanceX", 0, 3, -1, 1, Q("30.054646 mm")),
])
pad9 = body.newObject("PartDesign::Pad", "Pad008")
pad9.Profile = sketch21
pad9.Length = 3

# Sketch on an angled plane
sketch22 = body.newObject("Sketcher::SketchObject", "Sketch021")
sketch22.Placement = App.Placement(App.Vector(6.408688, 0, -73.251642), App.Rotation(App.Vector(0.996194698, 0, 0.087155743), App.Vector(0, -1, 0), App.Vector(0.087155743, 0, -0.996194698), "ZXY"))
sketch22.addGeometry([
    Part.Circle(App.Vector(18.9, 61, 0), App.Vector(0, 0, 1), 2),
    Part.Circle(App.Vector(30.3, 61, 0), App.Vector(0, 0, 1), 2),
    Part.Circle(App.Vector(18.9, 14, 0), App.Vector(0, 0, 1), 2),
    Part.Circle(App.Vector(30.3, 14, 0), App.Vector(0, 0, 1), 2),
], False)
sketch22.addConstraint([
    Sketcher.Constraint("Equal", 0, 1),
    Sketcher.Constraint("Equal", 1, 2),
    Sketcher.Constraint("Equal", 2, 3),
    Sketcher.Constraint("Horizontal", 0, 3, 1, 3),
    Sketcher.Constraint("Horizontal", 2, 3, 3, 3),
    Sketcher.Constraint("Vertical", 0, 3, 2, 3),
    Sketcher.Constraint("Vertical", 1, 3, 3, 3),
    Sketcher.Constraint("Diameter", 0, Q("4 mm")),
    Sketcher.Constraint("DistanceY", -1, 1, 0, 3, Q("61 mm")),
    Sketcher.Constraint("DistanceY", -1, 1, 2, 3, Q("14 mm")),
    Sketcher.Constraint("DistanceX", 0, 3, 1, 3, Q("11.4 mm")),
    Sketcher.Constraint("DistanceX", -1, 1, 0, 3, Q("18.924129 mm")),
])
pad10 = body.newObject("PartDesign::Pad", "Pad009")
pad10.Profile = sketch22
pad10.Length = 3

doc.recompute()
